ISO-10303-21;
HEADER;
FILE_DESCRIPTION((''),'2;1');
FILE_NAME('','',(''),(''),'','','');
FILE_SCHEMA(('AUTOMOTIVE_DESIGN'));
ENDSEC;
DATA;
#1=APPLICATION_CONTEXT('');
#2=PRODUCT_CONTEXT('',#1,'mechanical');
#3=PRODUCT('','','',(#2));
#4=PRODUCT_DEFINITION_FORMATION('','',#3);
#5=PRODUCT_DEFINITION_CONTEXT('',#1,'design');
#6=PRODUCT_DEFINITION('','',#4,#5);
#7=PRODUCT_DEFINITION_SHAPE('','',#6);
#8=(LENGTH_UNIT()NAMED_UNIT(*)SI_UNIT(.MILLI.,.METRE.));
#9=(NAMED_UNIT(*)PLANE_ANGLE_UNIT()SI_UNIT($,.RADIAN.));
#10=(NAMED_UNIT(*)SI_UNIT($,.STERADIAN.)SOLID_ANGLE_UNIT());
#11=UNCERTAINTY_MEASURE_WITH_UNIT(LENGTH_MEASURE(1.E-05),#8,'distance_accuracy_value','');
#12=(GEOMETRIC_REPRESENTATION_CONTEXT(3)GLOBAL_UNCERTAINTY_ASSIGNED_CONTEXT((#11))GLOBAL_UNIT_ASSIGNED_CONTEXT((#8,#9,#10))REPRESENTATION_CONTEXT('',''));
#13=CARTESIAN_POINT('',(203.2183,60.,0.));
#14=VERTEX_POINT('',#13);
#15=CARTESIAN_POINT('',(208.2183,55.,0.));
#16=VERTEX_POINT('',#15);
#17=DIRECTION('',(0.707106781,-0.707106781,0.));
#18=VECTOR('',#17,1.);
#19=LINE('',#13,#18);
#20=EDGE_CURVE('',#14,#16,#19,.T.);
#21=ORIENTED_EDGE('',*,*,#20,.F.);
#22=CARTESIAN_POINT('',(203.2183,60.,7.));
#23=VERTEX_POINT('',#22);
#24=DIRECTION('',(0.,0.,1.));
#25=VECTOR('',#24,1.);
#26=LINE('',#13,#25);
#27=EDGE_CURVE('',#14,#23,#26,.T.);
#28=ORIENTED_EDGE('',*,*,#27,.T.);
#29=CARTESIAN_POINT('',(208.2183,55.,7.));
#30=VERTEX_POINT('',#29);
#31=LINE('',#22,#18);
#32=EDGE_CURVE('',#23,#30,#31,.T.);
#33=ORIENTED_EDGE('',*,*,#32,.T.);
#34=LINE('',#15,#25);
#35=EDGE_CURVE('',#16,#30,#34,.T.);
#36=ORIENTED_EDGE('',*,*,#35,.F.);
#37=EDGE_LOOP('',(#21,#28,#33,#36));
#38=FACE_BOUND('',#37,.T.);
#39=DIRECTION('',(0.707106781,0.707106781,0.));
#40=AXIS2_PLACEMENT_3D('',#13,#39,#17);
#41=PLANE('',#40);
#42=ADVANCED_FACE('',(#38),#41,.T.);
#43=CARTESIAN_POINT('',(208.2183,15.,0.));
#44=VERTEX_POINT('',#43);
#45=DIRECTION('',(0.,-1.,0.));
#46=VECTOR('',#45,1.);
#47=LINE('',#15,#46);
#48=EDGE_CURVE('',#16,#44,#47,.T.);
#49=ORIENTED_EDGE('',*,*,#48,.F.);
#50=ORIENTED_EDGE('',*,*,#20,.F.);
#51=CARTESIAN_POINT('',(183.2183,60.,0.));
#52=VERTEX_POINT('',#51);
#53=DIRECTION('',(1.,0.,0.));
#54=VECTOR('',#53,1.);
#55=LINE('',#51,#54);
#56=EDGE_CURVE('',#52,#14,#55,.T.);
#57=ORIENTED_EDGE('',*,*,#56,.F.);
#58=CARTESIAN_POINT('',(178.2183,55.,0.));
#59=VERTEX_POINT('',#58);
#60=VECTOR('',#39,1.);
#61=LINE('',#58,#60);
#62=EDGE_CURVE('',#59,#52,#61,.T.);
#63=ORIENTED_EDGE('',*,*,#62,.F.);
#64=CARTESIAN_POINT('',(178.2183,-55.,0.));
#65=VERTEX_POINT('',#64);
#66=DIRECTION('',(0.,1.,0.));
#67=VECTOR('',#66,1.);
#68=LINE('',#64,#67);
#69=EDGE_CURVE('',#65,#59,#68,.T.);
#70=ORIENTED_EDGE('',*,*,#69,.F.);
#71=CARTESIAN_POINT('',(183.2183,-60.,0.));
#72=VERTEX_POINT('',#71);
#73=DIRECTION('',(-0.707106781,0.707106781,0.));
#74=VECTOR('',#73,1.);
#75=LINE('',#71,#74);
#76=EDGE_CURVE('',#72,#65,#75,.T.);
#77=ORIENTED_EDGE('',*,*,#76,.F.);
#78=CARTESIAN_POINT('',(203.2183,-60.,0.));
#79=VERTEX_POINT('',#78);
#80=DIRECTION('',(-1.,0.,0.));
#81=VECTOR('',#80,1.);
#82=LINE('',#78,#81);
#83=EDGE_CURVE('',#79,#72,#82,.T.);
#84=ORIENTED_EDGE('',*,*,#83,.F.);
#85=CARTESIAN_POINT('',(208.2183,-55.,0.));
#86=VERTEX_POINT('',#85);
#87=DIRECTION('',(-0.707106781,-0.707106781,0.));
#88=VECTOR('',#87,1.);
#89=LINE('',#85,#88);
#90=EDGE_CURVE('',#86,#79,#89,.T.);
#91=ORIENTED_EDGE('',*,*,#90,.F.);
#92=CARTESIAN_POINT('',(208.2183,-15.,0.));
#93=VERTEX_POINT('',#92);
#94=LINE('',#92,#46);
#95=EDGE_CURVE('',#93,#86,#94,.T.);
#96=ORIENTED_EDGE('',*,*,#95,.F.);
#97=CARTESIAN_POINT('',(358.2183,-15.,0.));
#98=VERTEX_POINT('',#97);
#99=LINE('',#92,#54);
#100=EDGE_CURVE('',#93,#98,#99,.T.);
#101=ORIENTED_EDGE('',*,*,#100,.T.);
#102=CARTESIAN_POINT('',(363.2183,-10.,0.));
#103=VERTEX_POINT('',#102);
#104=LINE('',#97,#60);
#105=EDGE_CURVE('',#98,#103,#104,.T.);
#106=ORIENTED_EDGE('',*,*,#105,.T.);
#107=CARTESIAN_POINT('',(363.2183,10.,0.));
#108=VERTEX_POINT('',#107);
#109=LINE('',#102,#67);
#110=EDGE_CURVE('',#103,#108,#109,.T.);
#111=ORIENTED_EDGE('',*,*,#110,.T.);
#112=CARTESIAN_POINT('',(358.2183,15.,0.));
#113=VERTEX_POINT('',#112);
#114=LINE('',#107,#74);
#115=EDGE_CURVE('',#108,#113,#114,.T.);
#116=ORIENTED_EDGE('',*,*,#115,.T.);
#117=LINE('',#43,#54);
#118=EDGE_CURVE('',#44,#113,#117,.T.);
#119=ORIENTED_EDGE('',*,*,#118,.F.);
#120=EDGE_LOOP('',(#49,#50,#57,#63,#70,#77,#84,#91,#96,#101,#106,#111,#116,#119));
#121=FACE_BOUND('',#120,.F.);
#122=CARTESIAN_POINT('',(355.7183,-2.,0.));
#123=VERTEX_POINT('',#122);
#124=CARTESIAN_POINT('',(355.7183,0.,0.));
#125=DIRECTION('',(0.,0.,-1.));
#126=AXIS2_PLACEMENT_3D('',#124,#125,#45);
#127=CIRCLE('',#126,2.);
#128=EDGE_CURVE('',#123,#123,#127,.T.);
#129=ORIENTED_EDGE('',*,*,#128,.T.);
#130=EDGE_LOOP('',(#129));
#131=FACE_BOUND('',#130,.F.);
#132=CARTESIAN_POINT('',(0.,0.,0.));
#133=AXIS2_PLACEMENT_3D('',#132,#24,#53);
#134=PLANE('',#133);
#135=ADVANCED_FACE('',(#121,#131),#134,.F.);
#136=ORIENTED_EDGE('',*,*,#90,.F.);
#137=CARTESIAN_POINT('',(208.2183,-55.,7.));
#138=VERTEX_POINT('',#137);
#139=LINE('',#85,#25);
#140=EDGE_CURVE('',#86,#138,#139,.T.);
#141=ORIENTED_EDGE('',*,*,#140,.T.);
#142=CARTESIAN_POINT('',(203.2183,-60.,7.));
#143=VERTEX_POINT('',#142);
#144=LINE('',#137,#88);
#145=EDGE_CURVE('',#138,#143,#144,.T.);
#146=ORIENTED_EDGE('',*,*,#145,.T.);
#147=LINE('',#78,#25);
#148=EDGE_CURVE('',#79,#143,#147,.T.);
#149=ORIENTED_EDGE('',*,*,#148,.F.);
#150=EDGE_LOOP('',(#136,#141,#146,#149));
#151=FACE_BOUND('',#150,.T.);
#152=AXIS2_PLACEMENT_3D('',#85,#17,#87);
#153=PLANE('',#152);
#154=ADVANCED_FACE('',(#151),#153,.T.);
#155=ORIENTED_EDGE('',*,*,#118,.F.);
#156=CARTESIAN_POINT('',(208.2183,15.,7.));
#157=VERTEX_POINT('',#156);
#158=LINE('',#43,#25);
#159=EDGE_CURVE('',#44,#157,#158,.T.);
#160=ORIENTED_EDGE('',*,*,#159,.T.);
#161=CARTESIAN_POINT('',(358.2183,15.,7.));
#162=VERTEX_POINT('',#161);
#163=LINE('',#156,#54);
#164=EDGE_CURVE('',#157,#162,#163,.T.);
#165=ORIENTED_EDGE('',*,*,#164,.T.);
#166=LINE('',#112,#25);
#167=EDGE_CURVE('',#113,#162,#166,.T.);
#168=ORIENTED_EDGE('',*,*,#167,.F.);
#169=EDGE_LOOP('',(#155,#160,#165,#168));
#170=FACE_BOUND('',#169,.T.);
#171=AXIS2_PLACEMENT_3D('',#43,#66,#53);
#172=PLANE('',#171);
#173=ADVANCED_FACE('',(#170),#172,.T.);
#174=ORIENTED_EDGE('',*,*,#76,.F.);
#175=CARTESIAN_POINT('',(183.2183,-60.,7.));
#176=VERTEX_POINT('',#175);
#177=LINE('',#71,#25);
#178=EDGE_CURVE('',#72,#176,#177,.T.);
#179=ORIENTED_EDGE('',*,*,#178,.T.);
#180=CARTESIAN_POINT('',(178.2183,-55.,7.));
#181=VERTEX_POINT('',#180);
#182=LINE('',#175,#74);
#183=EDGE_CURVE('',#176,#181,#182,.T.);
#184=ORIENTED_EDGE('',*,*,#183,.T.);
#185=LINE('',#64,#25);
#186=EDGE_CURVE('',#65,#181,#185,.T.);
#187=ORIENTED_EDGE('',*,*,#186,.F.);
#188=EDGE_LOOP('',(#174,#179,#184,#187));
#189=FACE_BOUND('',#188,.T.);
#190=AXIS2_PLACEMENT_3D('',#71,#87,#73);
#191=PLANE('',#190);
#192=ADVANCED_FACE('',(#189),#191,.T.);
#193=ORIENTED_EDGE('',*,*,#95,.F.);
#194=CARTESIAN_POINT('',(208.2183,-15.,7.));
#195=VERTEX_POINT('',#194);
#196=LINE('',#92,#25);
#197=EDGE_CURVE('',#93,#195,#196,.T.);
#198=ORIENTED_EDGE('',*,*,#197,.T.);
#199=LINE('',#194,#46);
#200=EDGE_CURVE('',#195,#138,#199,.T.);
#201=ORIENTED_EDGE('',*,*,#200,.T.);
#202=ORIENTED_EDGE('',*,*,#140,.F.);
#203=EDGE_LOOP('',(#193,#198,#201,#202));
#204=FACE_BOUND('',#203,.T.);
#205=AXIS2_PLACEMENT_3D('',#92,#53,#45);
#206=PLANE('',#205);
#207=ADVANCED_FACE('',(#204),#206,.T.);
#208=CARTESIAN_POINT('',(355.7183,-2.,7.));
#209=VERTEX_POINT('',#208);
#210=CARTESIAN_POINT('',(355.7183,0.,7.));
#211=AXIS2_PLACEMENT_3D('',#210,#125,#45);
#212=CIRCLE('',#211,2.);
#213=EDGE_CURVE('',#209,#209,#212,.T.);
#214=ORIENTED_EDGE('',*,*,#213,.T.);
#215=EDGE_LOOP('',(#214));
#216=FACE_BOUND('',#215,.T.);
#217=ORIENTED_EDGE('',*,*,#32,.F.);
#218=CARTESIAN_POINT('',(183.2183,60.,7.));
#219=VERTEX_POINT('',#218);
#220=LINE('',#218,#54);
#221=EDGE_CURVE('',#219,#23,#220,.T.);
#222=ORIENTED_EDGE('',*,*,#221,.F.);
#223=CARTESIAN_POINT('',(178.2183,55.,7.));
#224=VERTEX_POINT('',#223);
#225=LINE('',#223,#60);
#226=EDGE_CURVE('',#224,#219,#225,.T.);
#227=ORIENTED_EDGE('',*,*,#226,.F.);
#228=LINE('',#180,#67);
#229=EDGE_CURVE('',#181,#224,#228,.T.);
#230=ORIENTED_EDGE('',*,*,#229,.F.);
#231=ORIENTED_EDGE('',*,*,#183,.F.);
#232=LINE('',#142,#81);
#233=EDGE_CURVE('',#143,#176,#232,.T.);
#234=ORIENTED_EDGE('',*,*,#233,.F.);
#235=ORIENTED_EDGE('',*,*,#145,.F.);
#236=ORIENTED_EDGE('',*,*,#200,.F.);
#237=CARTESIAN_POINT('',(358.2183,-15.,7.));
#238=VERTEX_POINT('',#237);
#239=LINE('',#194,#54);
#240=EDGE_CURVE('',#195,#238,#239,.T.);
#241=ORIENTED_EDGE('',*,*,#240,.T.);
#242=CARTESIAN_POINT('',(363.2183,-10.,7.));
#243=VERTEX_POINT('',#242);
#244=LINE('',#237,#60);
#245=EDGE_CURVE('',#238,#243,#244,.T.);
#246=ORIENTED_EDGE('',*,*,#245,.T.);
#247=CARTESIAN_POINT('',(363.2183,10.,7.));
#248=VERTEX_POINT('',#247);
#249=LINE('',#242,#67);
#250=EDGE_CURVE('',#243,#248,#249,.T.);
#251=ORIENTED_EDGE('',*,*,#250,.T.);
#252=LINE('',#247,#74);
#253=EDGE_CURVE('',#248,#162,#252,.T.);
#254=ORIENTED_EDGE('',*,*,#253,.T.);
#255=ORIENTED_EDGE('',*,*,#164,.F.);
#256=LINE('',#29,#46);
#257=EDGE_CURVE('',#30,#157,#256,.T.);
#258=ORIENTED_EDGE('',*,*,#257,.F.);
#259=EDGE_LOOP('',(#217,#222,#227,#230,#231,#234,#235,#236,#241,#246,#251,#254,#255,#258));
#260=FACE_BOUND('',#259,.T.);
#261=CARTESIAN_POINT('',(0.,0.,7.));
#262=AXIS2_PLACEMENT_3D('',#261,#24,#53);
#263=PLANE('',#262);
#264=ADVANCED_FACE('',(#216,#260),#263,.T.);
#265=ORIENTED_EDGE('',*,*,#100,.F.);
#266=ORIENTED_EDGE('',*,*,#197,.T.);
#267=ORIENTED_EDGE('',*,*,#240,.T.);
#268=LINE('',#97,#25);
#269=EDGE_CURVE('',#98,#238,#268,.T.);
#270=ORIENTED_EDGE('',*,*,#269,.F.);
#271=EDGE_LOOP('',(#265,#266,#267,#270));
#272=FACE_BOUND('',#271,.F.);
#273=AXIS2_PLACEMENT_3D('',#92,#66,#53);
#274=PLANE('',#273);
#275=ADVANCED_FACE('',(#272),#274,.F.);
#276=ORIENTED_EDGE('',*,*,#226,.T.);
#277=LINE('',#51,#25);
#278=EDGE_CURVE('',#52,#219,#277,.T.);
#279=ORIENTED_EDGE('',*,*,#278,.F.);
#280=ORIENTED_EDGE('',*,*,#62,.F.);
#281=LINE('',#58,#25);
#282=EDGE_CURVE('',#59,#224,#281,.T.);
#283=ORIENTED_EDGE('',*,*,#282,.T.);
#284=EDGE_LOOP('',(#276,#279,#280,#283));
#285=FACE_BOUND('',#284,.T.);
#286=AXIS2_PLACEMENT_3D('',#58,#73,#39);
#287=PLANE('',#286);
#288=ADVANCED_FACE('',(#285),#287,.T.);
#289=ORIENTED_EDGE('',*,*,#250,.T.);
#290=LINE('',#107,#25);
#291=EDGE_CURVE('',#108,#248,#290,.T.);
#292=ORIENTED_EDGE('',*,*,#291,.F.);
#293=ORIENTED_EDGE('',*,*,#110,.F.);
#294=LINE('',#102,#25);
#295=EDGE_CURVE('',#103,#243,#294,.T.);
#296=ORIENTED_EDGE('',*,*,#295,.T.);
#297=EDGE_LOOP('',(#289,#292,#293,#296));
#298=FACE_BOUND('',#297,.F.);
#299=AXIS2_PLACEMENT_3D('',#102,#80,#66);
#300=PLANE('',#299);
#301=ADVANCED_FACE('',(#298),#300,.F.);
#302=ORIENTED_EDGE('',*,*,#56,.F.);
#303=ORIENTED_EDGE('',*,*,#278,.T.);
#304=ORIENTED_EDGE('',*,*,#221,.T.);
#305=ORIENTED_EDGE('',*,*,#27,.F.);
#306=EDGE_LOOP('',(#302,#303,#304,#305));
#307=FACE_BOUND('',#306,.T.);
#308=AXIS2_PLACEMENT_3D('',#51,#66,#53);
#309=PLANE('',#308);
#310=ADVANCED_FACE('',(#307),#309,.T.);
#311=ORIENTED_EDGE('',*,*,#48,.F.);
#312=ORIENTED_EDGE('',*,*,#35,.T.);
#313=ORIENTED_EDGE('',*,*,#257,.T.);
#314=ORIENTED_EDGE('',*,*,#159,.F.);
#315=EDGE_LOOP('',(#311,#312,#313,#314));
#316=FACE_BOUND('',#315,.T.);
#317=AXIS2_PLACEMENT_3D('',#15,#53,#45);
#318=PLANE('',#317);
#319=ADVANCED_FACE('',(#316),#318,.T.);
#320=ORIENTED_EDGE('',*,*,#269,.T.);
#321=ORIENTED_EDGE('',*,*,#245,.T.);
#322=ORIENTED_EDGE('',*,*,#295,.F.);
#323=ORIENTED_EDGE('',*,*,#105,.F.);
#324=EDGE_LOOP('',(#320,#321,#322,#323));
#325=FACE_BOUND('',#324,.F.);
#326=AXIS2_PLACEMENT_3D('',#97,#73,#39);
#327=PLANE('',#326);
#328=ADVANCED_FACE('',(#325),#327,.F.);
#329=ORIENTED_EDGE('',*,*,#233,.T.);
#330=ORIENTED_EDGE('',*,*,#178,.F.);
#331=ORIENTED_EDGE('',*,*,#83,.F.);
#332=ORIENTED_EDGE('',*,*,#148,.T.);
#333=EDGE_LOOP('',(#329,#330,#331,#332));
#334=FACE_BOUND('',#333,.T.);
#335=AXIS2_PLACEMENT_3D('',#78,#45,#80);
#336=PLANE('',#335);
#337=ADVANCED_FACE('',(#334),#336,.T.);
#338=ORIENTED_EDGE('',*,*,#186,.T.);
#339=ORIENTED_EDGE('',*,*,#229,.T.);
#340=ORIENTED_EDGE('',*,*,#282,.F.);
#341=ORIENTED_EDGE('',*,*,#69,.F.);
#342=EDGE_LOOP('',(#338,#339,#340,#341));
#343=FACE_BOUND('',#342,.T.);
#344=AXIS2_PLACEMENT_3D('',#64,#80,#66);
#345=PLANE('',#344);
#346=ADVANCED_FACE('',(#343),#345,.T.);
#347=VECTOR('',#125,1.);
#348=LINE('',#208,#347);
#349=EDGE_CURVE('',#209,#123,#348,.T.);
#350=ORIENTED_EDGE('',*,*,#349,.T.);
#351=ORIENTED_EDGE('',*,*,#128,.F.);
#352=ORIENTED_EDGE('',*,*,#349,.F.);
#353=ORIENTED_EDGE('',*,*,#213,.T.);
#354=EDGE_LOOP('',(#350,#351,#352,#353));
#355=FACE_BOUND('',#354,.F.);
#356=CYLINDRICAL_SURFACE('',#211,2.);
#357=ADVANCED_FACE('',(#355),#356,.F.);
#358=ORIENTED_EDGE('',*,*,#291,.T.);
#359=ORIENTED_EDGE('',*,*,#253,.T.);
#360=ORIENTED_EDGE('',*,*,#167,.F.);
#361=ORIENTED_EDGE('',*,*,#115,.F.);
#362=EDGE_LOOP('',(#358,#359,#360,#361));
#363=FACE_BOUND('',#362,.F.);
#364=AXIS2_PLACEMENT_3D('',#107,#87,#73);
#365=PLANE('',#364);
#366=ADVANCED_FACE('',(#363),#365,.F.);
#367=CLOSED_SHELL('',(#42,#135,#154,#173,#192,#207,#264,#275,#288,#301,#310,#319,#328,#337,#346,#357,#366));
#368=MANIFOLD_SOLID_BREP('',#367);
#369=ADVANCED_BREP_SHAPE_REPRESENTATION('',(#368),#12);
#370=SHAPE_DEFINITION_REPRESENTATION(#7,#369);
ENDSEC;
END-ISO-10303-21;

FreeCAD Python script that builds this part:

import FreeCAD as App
import Part
import Sketcher
from FreeCAD import Vector
Q = App.Units.Quantity

doc = App.newDocument("Part")
body = doc.addObject("PartDesign::Body", "Body")

# Sketch on XY plane
sketch1 = body.newObject("Sketcher::SketchObject", "Sketch")
sketch1.AttachmentSupport = (doc.getObject("XY_Plane"), [""])
sketch1.MapMode = "FlatFace"
sketch1.addGeometry([
    Part.LineSegment(Vector(203.2183, 60, 0), Vector(183.2183, 60, 0)),  # 0
    Part.LineSegment(Vector(183.2183, 60, 0), Vector(178.2183, 55, 0)),  # 1
    Part.LineSegment(Vector(178.2183, 55, 0), Vector(178.2183, -55, 0)),  # 2
    Part.LineSegment(Vector(178.2183, -55, 0), Vector(183.2183, -60, 0)),  # 3
    Part.LineSegment(Vector(183.2183, -60, 0), Vector(203.2183, -60, 0)),  # 4
    Part.LineSegment(Vector(203.2183, -60, 0), Vector(208.2183, -55, 0)),  # 5
    Part.LineSegment(Vector(208.2183, -55, 0), Vector(208.2183, -15, 0)),  # 6
    Part.LineSegment(Vector(208.2183, -15, 0), Vector(358.2183, -15, 0)),  # 7
    Part.LineSegment(Vector(358.2183, -15, 0), Vector(363.2183, -10, 0)),  # 8
    Part.LineSegment(Vector(363.2183, -10, 0), Vector(363.2183, 10, 0)),  # 9
    Part.LineSegment(Vector(363.2183, 10, 0), Vector(358.2183, 15, 0)),  # 10
    Part.LineSegment(Vector(358.2183, 15, 0), Vector(208.2183, 15, 0)),  # 11
    Part.LineSegment(Vector(208.2183, 15, 0), Vector(208.2183, 55, 0)),  # 12
    Part.LineSegment(Vector(208.2183, 55, 0), Vector(203.2183, 60, 0)),  # 13
], False)
sketch1.addConstraint([
    Sketcher.Constraint("Coincident", 0, 2, 1, 1),
    Sketcher.Constraint("Coincident", 1, 2, 2, 1),
    Sketcher.Constraint("Coincident", 2, 2, 3, 1),
    Sketcher.Constraint("Coincident", 3, 2, 4, 1),
    Sketcher.Constraint("Coincident", 4, 2, 5, 1),
    Sketcher.Constraint("Coincident", 5, 2, 6, 1),
    Sketcher.Constraint("Coincident", 6, 2, 7, 1),
    Sketcher.Constraint("Coincident", 7, 2, 8, 1),
    Sketcher.Constraint("Coincident", 8, 2, 9, 1),
    Sketcher.Constraint("Coincident", 9, 2, 10, 1),
    Sketcher.Constraint("Coincident", 10, 2, 11, 1),
    Sketcher.Constraint("Coincident", 11, 2, 12, 1),
    Sketcher.Constraint("Coincident", 12, 2, 13, 1),
    Sketcher.Constraint("Coincident", 13, 2, 0, 1),
    Sketcher.Constraint("Horizontal", 0),
    Sketcher.Constraint("Vertical", 2),
    Sketcher.Constraint("Horizontal", 4),
    Sketcher.Constraint("Vertical", 6),
    Sketcher.Constraint("Horizontal", 7),
    Sketcher.Constraint("Vertical", 9),
    Sketcher.Constraint("Horizontal", 11),
    Sketcher.Constraint("Vertical", 12),
    Sketcher.Constraint("Symmetric", 0, 2, 3, 2, -1),
    Sketcher.Constraint("Symmetric", 7, 2, 10, 2, -1),
    Sketcher.Constraint("Symmetric", 5, 2, 12, 2, -1),
    Sketcher.Constraint("Perpendicular", 1, 3),
    Sketcher.Constraint("Perpendicular", 3, 5),
    Sketcher.Constraint("Parallel", 5, 8),
    Sketcher.Constraint("Perpendicular", 8, 10),
    Sketcher.Constraint("Parallel", 10, 13),
    Sketcher.Constraint("Horizontal", 2, 2, 5, 2),
    Sketcher.Constraint("Horizontal", 1, 2, 12, 2),
    Sketcher.Constraint("Equal", 4, 9),
    Sketcher.Constraint("Equal", 5, 8),
    Sketcher.Constraint("DistanceX", 7, 1, 7, 2, Q("150 mm")),
    Sketcher.Constraint("DistanceY", 6, 2, -1, 1, Q("15 mm")),
    Sketcher.Constraint("DistanceX", 1, 2, 0, 2, Q("5 mm")),
    Sketcher.Constraint("DistanceY", 4, 2, 6, 2, Q("45 mm")),
    Sketcher.Constraint("DistanceX", -1, 1, 0, 2, Q("183.2183 mm")),
])
pad1 = body.newObject("PartDesign::Pad", "Pad")
pad1.Profile = sketch1
pad1.Length = 7

# Sketch on XY plane
sketch2 = body.newObject("Sketcher::SketchObject", "Sketch001")
sketch2.AttachmentSupport = (doc.getObject("XY_Plane"), [""])
sketch2.MapMode = "FlatFace"
sketch2.AttachmentOffset = App.Placement(Vector(0, 0, 7), App.Rotation())
sketch2.addGeometry(Part.Circle(Vector(355.7183, 0, 0), Vector(0, 0, 1), 2), False)
sketch2.addConstraint([
    Sketcher.Constraint("PointOnObject", 0, 3, -1),
    Sketcher.Constraint("Diameter", 0, Q("4 mm")),
    Sketcher.Constraint("DistanceX", -1, 1, 0, 3, Q("355.7183 mm")),
])
doc.recompute()
hole = body.newObject("PartDesign::Hole", "Hole")
hole.Profile = sketch2
hole.ThreadType = "None"
hole.Diameter = 4
hole.DepthType = "ThroughAll"

doc.recompute()
